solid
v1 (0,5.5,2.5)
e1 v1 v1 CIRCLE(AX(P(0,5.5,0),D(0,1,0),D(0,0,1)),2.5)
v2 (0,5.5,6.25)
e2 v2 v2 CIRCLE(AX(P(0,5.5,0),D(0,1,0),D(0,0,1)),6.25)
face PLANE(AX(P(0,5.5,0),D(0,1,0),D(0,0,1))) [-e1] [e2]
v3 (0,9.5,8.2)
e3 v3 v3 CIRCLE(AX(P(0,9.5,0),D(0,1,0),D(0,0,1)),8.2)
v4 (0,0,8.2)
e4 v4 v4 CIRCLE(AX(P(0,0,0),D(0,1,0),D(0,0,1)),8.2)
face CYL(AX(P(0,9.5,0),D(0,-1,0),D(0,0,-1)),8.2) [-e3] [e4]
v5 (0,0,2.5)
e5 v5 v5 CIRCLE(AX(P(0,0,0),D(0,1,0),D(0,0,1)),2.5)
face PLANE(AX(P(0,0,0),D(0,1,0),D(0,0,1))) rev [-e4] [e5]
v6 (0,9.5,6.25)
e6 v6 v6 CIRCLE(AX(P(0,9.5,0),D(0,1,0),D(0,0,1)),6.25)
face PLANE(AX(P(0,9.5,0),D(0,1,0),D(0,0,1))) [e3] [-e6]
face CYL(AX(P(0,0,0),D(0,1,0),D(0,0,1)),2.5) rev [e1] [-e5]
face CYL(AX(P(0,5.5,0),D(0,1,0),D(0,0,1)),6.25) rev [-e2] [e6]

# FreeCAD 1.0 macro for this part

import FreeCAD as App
import Part
import Sketcher
from FreeCAD import Vector
Q = App.Units.Quantity

doc = App.newDocument("Part")
body = doc.addObject("PartDesign::Body", "Body")

# Sketch on XZ plane
sketch1 = body.newObject("Sketcher::SketchObject", "Sketch")
sketch1.AttachmentSupport = (doc.getObject("XZ_Plane"), [""])
sketch1.MapMode = "FlatFace"
sketch1.addGeometry(Part.Circle(Vector(0, 0, 0), Vector(0, 0, 1), 8), False)
sketch1.addConstraint(Sketcher.Constraint("Coincident", 0, 3, -1, 1))
sketch1.addConstraint(Sketcher.Constraint("Diameter", 0, Q("16.4 mm")))
pad1 = body.newObject("PartDesign::Pad", "Pad")
pad1.Profile = sketch1
pad1.Length = 9.5
pad1.Reversed = True

# Sketch on XZ plane
sketch2 = body.newObject("Sketcher::SketchObject", "Sketch001")
sketch2.AttachmentSupport = (doc.getObject("XZ_Plane"), [""])
sketch2.MapMode = "FlatFace"
sketch2.AttachmentOffset = App.Placement(Vector(0, 0, -9.5), App.Rotation())
sketch2.addGeometry(Part.Circle(Vector(0, 0, 0), Vector(0, 0, 1), 6), False)
sketch2.addConstraint(Sketcher.Constraint("Coincident", 0, 3, -1, 1))
sketch2.addConstraint(Sketcher.Constraint("Diameter", 0, Q("12.5 mm")))
pocket1 = body.newObject("PartDesign::Pocket", "Pocket")
pocket1.Profile = sketch2
pocket1.Length = 4
pocket1.Reversed = True

# Sketch on XZ plane
sketch3 = body.newObject("Sketcher::SketchObject", "Sketch002")
sketch3.AttachmentSupport = (doc.getObject("XZ_Plane"), [""])
sketch3.MapMode = "FlatFace"
sketch3.AttachmentOffset = App.Placement(Vector(0, 0, -5.5), App.Rotation())
sketch3.addGeometry(Part.Circle(Vector(0, 0, 0), Vector(0, 0, 1), 2.5), False)
sketch3.addConstraint(Sketcher.Constraint("Coincident", 0, 3, -1, 1))
sketch3.addConstraint(Sketcher.Constraint("Diameter", 0, Q("5 mm")))
pocket2 = body.newObject("PartDesign::Pocket", "Pocket001")
pocket2.Profile = sketch3
pocket2.Type = "ThroughAll"
pocket2.Reversed = True

doc.recompute()
